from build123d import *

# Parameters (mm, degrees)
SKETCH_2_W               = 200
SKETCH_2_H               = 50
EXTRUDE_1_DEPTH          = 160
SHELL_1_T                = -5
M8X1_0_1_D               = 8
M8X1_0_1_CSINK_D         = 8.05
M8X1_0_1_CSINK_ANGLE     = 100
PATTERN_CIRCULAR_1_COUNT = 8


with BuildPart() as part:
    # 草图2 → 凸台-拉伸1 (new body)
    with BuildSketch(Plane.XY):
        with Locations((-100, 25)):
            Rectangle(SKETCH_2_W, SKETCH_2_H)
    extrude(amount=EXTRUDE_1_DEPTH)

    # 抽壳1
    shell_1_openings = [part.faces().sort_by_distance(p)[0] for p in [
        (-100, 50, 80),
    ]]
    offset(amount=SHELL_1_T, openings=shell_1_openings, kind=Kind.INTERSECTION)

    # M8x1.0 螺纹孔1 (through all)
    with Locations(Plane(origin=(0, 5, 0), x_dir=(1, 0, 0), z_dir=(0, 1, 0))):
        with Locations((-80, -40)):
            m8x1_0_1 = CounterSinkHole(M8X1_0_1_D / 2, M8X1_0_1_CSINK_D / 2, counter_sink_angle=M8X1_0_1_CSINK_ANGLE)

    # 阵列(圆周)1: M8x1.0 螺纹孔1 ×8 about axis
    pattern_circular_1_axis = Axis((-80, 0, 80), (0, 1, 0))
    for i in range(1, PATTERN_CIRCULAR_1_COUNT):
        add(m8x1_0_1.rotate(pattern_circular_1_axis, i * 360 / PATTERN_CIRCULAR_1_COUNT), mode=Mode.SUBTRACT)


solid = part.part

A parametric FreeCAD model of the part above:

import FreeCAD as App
import Part
import Sketcher


def faces_at(feature, points):
    """Names of the faces that lie closest to the given points."""
    faces = feature.Shape.Faces
    near = lambda p: min(range(len(faces)), key=lambda i: faces[i].distToShape(Part.Vertex(*p))[0])
    return sorted({f"Face{near(p) + 1}" for p in points})

doc = App.newDocument("Part")
body = doc.addObject("PartDesign::Body", "Body")

# Sketch on XY plane
sketch1 = doc.addObject("Sketcher::SketchObject", "Sketch")
body.addObject(sketch1)
sketch1.AttachmentSupport = (doc.XY_Plane, [""])
sketch1.MapMode = "FlatFace"
sketch1.addGeometry(Part.LineSegment(App.Vector(-200, 50, 0), App.Vector(-200, 0, 0)), False)
sketch1.addGeometry(Part.LineSegment(App.Vector(-200, 0, 0), App.Vector(0, 0, 0)), False)
sketch1.addGeometry(Part.LineSegment(App.Vector(0, 0, 0), App.Vector(0, 50, 0)), False)
sketch1.addGeometry(Part.LineSegment(App.Vector(0, 50, 0), App.Vector(-200, 50, 0)), False)
sketch1.addConstraint(Sketcher.Constraint("Coincident", 0, 2, 1, 1))
sketch1.addConstraint(Sketcher.Constraint("Coincident", 1, 2, 2, 1))
sketch1.addConstraint(Sketcher.Constraint("Coincident", 2, 2, 3, 1))
sketch1.addConstraint(Sketcher.Constraint("Coincident", 3, 2, 0, 1))
sketch1.addConstraint(Sketcher.Constraint("Vertical", 0))
sketch1.addConstraint(Sketcher.Constraint("Horizontal", 1))
sketch1.addConstraint(Sketcher.Constraint("Vertical", 2))
sketch1.addConstraint(Sketcher.Constraint("Horizontal", 3))
sketch1.addConstraint(Sketcher.Constraint("Coincident", 1, 2, -1, 1))
sketch1.addConstraint(Sketcher.Constraint("DistanceX", 1, 1, 1, 2, 200.0))
sketch1.addConstraint(Sketcher.Constraint("DistanceY", 0, 2, 0, 1, 50.0))
pad1 = doc.addObject("PartDesign::Pad", "Pad")
body.addObject(pad1)
pad1.Profile = sketch1
pad1.Length = 160
doc.recompute()

thickness = doc.addObject("PartDesign::Thickness", "Thickness")
body.addObject(thickness)
thickness.Base = (pad1, faces_at(pad1, [(-100, 50, 80)]))
thickness.Value = 5
thickness.Reversed = True
thickness.Join = "Intersection"

# Sketch on XZ plane
sketch2 = doc.addObject("Sketcher::SketchObject", "Sketch001")
body.addObject(sketch2)
sketch2.AttachmentSupport = (doc.XZ_Plane, [""])
sketch2.MapMode = "FlatFace"
sketch2.AttachmentOffset = App.Placement(App.Vector(0, 0, -5), App.Rotation())
sketch2.addGeometry(Part.Circle(App.Vector(-80, 40, 0), App.Vector(0, 0, 1), 4), False)
sketch2.addConstraint(Sketcher.Constraint("Diameter", 0, 8.0))
sketch2.addConstraint(Sketcher.Constraint("DistanceX", 0, 3, -1, 1, 80.0))
sketch2.addConstraint(Sketcher.Constraint("DistanceY", -1, 1, 0, 3, 40.0))
doc.recompute()
hole = doc.addObject("PartDesign::Hole", "Hole")
body.addObject(hole)
hole.Profile = sketch2
hole.ThreadType = "None"
hole.Diameter = 8
hole.DepthType = "ThroughAll"
hole.HoleCutType = "Countersink"
hole.HoleCutDiameter = 8.05
hole.HoleCutCountersinkAngle = 100
hole.Reversed = True
doc.recompute()

datumline = doc.addObject("PartDesign::Line", "DatumLine")
body.addObject(datumline)
datumline.Placement = App.Placement(App.Vector(-80, 0, 80), App.Rotation(App.Vector(0, 0, 1), App.Vector(0, 1, 0)))
polarpattern = doc.addObject("PartDesign::PolarPattern", "PolarPattern")
body.addObject(polarpattern)
polarpattern.Originals = [hole]
polarpattern.Axis = (datumline, [""])
polarpattern.Angle = 360
polarpattern.Occurrences = 8
body.Tip = polarpattern

doc.recompute()
